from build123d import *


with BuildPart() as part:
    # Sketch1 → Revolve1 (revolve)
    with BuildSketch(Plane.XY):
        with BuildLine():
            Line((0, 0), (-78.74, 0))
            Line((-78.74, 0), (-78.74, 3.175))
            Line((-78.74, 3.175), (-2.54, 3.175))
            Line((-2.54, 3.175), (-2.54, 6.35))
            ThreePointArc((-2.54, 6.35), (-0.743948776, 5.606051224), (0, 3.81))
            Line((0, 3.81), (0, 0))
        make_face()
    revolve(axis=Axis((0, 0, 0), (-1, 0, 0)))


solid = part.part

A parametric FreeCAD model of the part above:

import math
import FreeCAD as App
import Part
import Sketcher
from FreeCAD import Vector
Q = App.Units.Quantity

doc = App.newDocument("Part")
body = doc.addObject("PartDesign::Body", "Body")

sketch1 = body.newObject("Sketcher::SketchObject", "Sketch")
sketch1.AttachmentSupport = (doc.getObject("XY_Plane"), [""])
sketch1.MapMode = "FlatFace"
sketch1.addGeometry([
    Part.LineSegment(Vector(-78.74, 0, 0), Vector(0, 0, 0)),
    Part.LineSegment(Vector(0, 0, 0), Vector(0, 3.81, 0)),
    Part.ArcOfCircle(Part.Circle(Vector(-2.54, 3.81, 0), Vector(0, 0, 1), 2.54), math.radians(0), math.radians(90)),
    Part.LineSegment(Vector(-2.54, 6.35, 0), Vector(-2.54, 3.175, 0)),
    Part.LineSegment(Vector(-2.54, 3.175, 0), Vector(-78.74, 3.175, 0)),
    Part.LineSegment(Vector(-78.74, 3.175, 0), Vector(-78.74, 0, 0)),
], False)
sketch1.addConstraint([
    Sketcher.Constraint("Coincident", 0, 2, 1, 1),
    Sketcher.Constraint("Tangent", 1, 2, 2, 1),
    Sketcher.Constraint("Coincident", 2, 2, 3, 1),
    Sketcher.Constraint("Coincident", 3, 2, 4, 1),
    Sketcher.Constraint("Coincident", 4, 2, 5, 1),
    Sketcher.Constraint("Coincident", 5, 2, 0, 1),
    Sketcher.Constraint("Horizontal", 0),
    Sketcher.Constraint("Vertical", 1),
    Sketcher.Constraint("Vertical", 3),
    Sketcher.Constraint("Horizontal", 4),
    Sketcher.Constraint("Vertical", 5),
    Sketcher.Constraint("Coincident", 0, 2, -1, 1),
    Sketcher.Constraint("Equal", 3, 5),
    Sketcher.Constraint("Radius", 2, Q("0.1 in")),
    Sketcher.Constraint("DistanceX", 4, 2, 4, 1, Q("3 in")),
    Sketcher.Constraint("DistanceX", 0, 1, 0, 2, Q("3.1 in")),
    Sketcher.Constraint("DistanceY", 1, 1, 1, 2, Q("0.15 in")),
])
revolution = body.newObject("PartDesign::Revolution", "Revolution")
revolution.Profile = sketch1
revolution.ReferenceAxis = (sketch1, ["H_Axis"])
revolution.Angle = 360

doc.recompute()
